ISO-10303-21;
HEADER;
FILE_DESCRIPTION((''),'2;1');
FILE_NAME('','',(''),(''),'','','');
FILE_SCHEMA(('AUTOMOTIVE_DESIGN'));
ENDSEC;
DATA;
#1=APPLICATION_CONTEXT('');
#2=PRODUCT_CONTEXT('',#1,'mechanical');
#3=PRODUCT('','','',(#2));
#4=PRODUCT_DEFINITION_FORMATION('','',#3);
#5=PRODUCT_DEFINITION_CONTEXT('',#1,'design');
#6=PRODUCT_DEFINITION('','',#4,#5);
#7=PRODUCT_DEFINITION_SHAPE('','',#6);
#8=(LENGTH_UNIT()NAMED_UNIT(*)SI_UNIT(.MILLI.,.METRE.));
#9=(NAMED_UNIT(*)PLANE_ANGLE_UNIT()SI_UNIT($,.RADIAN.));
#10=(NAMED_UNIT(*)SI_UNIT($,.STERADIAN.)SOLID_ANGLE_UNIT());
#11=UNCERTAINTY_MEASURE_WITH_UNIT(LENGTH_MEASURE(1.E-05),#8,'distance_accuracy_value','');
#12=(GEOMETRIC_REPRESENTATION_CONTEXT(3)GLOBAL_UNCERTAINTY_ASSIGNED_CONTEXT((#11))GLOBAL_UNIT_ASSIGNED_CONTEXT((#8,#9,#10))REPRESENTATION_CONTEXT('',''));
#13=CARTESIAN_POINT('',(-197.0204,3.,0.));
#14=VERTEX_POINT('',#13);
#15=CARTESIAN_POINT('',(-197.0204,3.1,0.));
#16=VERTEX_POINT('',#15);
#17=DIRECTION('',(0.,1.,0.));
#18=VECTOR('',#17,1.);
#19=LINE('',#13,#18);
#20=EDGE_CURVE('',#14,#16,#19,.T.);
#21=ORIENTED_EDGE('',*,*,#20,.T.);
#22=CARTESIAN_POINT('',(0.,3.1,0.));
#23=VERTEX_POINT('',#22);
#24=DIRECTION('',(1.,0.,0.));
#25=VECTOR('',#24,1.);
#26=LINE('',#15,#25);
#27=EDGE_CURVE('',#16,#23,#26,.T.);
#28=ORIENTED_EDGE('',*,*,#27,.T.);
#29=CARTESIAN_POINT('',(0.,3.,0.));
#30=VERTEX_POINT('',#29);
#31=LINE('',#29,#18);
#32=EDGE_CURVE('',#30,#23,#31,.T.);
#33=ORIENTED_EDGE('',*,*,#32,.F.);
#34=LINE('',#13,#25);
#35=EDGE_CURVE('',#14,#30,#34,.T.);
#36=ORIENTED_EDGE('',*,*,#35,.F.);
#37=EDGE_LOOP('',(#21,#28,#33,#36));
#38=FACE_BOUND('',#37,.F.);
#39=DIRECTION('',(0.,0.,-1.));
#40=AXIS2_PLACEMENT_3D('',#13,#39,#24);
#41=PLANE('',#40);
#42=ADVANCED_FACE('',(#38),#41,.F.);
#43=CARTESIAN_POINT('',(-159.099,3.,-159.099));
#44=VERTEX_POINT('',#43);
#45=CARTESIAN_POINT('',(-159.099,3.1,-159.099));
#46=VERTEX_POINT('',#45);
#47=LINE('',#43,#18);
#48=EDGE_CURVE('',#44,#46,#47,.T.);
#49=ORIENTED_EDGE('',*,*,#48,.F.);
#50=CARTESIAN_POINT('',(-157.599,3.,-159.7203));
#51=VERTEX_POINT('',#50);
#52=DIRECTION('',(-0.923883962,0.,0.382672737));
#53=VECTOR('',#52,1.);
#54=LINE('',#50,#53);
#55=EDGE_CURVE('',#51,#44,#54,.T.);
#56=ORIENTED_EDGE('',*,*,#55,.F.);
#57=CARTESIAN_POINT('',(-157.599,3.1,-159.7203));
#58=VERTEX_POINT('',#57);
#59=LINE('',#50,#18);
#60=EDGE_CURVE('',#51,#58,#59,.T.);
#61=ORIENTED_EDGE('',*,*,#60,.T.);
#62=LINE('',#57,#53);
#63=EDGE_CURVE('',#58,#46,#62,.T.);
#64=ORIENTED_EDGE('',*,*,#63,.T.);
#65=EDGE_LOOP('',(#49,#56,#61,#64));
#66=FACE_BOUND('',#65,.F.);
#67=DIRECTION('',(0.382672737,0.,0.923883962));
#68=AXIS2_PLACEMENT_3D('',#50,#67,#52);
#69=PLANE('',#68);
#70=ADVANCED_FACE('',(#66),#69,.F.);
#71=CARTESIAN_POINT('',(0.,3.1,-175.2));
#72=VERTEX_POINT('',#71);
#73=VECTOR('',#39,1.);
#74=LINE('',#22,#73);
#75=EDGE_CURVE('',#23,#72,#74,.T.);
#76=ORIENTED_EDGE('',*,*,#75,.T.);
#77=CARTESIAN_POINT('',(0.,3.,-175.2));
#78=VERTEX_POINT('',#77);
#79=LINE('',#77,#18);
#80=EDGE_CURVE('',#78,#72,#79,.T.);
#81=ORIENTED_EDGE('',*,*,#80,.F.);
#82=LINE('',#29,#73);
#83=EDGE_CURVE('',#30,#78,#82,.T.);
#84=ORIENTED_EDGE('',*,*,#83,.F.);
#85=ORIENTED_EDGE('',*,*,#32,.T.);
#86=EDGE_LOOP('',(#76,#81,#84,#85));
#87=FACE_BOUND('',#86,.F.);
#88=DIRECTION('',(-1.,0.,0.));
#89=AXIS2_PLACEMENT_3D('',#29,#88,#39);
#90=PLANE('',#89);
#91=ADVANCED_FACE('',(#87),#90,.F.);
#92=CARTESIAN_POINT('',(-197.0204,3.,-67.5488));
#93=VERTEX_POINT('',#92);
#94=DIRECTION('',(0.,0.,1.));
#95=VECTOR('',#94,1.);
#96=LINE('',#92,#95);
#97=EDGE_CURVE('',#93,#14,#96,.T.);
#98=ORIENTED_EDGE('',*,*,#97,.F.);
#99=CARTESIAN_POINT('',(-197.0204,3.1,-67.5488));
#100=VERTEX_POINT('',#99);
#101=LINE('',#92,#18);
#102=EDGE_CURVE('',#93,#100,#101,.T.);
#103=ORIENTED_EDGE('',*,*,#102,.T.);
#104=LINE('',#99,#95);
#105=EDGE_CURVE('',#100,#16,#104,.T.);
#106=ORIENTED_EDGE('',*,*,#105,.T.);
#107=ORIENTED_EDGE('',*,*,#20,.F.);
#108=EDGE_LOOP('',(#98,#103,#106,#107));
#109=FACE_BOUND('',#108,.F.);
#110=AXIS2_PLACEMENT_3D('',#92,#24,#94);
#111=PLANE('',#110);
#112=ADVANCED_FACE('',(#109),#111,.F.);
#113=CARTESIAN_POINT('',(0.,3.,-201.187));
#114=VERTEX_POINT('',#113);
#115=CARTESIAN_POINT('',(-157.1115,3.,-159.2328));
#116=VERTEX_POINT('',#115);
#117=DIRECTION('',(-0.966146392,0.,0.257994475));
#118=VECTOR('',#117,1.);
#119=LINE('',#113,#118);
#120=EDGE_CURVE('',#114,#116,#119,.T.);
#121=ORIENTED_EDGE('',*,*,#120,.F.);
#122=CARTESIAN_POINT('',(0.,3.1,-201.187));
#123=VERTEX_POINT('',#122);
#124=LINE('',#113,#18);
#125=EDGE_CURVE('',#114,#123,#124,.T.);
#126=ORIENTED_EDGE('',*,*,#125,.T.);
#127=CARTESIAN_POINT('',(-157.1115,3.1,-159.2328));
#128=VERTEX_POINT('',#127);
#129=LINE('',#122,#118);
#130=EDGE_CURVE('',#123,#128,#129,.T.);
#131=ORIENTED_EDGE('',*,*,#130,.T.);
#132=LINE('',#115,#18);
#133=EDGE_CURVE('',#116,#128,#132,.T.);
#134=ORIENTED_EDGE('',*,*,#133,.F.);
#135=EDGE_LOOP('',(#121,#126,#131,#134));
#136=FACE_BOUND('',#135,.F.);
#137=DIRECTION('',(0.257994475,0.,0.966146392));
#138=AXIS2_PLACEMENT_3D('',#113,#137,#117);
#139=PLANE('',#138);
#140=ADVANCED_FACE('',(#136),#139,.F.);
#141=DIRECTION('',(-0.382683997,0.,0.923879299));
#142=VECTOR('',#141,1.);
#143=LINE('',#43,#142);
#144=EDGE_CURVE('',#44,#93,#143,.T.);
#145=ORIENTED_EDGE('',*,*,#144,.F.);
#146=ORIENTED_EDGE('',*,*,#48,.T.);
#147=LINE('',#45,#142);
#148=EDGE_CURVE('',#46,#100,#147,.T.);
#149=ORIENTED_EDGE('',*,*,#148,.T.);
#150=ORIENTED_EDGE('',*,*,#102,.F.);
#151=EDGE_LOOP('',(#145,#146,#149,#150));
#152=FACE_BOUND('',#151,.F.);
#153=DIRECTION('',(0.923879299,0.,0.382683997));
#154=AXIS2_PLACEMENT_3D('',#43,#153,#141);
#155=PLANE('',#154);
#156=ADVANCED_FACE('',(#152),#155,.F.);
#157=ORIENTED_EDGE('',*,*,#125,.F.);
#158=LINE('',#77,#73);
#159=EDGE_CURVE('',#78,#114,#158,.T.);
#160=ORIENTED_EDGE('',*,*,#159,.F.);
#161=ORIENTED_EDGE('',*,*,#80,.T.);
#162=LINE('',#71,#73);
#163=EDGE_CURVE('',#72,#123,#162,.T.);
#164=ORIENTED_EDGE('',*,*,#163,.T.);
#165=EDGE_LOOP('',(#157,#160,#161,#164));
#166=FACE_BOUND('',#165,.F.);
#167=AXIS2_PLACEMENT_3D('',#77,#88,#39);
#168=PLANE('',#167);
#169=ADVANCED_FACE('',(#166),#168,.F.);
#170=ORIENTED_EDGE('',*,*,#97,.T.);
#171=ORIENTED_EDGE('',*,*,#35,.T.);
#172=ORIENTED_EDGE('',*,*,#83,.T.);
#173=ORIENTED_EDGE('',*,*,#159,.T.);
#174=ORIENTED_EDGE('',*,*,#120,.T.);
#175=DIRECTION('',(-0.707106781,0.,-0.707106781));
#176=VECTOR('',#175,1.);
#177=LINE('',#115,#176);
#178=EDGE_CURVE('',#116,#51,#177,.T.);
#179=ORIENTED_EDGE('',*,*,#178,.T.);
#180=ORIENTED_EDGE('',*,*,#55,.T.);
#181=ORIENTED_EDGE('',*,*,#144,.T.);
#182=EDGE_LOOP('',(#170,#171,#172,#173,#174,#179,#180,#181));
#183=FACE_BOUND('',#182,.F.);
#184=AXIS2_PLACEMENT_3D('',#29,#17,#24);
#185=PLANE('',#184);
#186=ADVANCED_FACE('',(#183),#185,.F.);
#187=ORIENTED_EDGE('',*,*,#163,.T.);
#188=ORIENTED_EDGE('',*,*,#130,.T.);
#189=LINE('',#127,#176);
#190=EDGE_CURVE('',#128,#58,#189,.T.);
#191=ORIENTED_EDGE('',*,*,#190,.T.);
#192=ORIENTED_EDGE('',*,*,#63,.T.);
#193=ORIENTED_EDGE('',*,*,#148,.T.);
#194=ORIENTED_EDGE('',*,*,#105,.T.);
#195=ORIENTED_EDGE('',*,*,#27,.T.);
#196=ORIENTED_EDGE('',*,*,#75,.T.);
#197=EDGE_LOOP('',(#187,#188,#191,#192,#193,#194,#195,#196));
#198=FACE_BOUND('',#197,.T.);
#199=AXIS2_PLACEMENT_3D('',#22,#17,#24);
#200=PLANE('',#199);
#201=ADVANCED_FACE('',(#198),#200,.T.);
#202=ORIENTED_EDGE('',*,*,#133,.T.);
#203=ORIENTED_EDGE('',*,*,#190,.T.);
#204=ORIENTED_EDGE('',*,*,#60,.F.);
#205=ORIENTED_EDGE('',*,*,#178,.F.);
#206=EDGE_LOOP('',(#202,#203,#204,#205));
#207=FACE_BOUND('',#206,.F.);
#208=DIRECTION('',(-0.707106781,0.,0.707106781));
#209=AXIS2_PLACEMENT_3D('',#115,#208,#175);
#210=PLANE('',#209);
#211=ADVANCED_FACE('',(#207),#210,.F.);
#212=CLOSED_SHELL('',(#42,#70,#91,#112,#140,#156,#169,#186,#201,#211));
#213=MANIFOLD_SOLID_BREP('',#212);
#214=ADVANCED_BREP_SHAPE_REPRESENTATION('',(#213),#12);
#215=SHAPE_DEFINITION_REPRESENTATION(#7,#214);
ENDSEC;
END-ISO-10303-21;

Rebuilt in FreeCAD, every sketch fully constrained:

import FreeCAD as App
import Part
import Sketcher

V = App.Vector
Q = App.Units.Quantity


def add_polygon(sketch, points):
    """Adds a closed chain of lines whose ends are joined by coincident constraints."""
    first, n = sketch.GeometryCount, len(points)
    for a, b in zip(points, points[1:] + points[:1]):
        sketch.addGeometry(Part.LineSegment(App.Vector(*a, 0), App.Vector(*b, 0)), False)
    for i in range(n):
        sketch.addConstraint(Sketcher.Constraint("Coincident", first + i, 2, first + (i + 1) % n, 1))

doc = App.newDocument("Part")
body = doc.addObject("PartDesign::Body", "Body")

sketch1 = body.newObject("Sketcher::SketchObject", "Sketch")
sketch1.AttachmentSupport = (doc.getObject("XZ_Plane"), [""])
sketch1.MapMode = "FlatFace"
sketch1.AttachmentOffset = App.Placement(V(0, 0, -3), App.Rotation())
add_polygon(sketch1, [(-159.1, -159.1), (-197, -67.5), (-197, 0), (0, 0), (0, -201.2), (-157.1, -159.2), (-157.6, -159.7)])
sketch1.addConstraint([
    Sketcher.Constraint("Vertical", 1),
    Sketcher.Constraint("Horizontal", 2),
    Sketcher.Constraint("Vertical", 3),
    Sketcher.Constraint("Coincident", 2, 2, -1, 1),
    Sketcher.Constraint("Angle", 5, Q("-135 deg")),
    Sketcher.Constraint("Angle", 0, Q("112.5 deg")),
    Sketcher.Constraint("Angle", 6, Q("157.5007 deg")),
    Sketcher.Constraint("Angle", 4, Q("165.049 deg")),
    Sketcher.Constraint("DistanceX", 6, 2, 5, 2, 1.5),
    Sketcher.Constraint("DistanceY", 3, 2, 3, 1, 201.187),
    Sketcher.Constraint("DistanceX", 2, 1, 2, 2, 197.0204),
    Sketcher.Constraint("DistanceY", 1, 1, 1, 2, 67.5488),
    Sketcher.Constraint("DistanceX", 5, 2, -1, 1, 157.599),
])
pad1 = body.newObject("PartDesign::Pad", "Pad")
pad1.Profile = sketch1
pad1.Length = 0.1
pad1.Reversed = True

doc.recompute()
